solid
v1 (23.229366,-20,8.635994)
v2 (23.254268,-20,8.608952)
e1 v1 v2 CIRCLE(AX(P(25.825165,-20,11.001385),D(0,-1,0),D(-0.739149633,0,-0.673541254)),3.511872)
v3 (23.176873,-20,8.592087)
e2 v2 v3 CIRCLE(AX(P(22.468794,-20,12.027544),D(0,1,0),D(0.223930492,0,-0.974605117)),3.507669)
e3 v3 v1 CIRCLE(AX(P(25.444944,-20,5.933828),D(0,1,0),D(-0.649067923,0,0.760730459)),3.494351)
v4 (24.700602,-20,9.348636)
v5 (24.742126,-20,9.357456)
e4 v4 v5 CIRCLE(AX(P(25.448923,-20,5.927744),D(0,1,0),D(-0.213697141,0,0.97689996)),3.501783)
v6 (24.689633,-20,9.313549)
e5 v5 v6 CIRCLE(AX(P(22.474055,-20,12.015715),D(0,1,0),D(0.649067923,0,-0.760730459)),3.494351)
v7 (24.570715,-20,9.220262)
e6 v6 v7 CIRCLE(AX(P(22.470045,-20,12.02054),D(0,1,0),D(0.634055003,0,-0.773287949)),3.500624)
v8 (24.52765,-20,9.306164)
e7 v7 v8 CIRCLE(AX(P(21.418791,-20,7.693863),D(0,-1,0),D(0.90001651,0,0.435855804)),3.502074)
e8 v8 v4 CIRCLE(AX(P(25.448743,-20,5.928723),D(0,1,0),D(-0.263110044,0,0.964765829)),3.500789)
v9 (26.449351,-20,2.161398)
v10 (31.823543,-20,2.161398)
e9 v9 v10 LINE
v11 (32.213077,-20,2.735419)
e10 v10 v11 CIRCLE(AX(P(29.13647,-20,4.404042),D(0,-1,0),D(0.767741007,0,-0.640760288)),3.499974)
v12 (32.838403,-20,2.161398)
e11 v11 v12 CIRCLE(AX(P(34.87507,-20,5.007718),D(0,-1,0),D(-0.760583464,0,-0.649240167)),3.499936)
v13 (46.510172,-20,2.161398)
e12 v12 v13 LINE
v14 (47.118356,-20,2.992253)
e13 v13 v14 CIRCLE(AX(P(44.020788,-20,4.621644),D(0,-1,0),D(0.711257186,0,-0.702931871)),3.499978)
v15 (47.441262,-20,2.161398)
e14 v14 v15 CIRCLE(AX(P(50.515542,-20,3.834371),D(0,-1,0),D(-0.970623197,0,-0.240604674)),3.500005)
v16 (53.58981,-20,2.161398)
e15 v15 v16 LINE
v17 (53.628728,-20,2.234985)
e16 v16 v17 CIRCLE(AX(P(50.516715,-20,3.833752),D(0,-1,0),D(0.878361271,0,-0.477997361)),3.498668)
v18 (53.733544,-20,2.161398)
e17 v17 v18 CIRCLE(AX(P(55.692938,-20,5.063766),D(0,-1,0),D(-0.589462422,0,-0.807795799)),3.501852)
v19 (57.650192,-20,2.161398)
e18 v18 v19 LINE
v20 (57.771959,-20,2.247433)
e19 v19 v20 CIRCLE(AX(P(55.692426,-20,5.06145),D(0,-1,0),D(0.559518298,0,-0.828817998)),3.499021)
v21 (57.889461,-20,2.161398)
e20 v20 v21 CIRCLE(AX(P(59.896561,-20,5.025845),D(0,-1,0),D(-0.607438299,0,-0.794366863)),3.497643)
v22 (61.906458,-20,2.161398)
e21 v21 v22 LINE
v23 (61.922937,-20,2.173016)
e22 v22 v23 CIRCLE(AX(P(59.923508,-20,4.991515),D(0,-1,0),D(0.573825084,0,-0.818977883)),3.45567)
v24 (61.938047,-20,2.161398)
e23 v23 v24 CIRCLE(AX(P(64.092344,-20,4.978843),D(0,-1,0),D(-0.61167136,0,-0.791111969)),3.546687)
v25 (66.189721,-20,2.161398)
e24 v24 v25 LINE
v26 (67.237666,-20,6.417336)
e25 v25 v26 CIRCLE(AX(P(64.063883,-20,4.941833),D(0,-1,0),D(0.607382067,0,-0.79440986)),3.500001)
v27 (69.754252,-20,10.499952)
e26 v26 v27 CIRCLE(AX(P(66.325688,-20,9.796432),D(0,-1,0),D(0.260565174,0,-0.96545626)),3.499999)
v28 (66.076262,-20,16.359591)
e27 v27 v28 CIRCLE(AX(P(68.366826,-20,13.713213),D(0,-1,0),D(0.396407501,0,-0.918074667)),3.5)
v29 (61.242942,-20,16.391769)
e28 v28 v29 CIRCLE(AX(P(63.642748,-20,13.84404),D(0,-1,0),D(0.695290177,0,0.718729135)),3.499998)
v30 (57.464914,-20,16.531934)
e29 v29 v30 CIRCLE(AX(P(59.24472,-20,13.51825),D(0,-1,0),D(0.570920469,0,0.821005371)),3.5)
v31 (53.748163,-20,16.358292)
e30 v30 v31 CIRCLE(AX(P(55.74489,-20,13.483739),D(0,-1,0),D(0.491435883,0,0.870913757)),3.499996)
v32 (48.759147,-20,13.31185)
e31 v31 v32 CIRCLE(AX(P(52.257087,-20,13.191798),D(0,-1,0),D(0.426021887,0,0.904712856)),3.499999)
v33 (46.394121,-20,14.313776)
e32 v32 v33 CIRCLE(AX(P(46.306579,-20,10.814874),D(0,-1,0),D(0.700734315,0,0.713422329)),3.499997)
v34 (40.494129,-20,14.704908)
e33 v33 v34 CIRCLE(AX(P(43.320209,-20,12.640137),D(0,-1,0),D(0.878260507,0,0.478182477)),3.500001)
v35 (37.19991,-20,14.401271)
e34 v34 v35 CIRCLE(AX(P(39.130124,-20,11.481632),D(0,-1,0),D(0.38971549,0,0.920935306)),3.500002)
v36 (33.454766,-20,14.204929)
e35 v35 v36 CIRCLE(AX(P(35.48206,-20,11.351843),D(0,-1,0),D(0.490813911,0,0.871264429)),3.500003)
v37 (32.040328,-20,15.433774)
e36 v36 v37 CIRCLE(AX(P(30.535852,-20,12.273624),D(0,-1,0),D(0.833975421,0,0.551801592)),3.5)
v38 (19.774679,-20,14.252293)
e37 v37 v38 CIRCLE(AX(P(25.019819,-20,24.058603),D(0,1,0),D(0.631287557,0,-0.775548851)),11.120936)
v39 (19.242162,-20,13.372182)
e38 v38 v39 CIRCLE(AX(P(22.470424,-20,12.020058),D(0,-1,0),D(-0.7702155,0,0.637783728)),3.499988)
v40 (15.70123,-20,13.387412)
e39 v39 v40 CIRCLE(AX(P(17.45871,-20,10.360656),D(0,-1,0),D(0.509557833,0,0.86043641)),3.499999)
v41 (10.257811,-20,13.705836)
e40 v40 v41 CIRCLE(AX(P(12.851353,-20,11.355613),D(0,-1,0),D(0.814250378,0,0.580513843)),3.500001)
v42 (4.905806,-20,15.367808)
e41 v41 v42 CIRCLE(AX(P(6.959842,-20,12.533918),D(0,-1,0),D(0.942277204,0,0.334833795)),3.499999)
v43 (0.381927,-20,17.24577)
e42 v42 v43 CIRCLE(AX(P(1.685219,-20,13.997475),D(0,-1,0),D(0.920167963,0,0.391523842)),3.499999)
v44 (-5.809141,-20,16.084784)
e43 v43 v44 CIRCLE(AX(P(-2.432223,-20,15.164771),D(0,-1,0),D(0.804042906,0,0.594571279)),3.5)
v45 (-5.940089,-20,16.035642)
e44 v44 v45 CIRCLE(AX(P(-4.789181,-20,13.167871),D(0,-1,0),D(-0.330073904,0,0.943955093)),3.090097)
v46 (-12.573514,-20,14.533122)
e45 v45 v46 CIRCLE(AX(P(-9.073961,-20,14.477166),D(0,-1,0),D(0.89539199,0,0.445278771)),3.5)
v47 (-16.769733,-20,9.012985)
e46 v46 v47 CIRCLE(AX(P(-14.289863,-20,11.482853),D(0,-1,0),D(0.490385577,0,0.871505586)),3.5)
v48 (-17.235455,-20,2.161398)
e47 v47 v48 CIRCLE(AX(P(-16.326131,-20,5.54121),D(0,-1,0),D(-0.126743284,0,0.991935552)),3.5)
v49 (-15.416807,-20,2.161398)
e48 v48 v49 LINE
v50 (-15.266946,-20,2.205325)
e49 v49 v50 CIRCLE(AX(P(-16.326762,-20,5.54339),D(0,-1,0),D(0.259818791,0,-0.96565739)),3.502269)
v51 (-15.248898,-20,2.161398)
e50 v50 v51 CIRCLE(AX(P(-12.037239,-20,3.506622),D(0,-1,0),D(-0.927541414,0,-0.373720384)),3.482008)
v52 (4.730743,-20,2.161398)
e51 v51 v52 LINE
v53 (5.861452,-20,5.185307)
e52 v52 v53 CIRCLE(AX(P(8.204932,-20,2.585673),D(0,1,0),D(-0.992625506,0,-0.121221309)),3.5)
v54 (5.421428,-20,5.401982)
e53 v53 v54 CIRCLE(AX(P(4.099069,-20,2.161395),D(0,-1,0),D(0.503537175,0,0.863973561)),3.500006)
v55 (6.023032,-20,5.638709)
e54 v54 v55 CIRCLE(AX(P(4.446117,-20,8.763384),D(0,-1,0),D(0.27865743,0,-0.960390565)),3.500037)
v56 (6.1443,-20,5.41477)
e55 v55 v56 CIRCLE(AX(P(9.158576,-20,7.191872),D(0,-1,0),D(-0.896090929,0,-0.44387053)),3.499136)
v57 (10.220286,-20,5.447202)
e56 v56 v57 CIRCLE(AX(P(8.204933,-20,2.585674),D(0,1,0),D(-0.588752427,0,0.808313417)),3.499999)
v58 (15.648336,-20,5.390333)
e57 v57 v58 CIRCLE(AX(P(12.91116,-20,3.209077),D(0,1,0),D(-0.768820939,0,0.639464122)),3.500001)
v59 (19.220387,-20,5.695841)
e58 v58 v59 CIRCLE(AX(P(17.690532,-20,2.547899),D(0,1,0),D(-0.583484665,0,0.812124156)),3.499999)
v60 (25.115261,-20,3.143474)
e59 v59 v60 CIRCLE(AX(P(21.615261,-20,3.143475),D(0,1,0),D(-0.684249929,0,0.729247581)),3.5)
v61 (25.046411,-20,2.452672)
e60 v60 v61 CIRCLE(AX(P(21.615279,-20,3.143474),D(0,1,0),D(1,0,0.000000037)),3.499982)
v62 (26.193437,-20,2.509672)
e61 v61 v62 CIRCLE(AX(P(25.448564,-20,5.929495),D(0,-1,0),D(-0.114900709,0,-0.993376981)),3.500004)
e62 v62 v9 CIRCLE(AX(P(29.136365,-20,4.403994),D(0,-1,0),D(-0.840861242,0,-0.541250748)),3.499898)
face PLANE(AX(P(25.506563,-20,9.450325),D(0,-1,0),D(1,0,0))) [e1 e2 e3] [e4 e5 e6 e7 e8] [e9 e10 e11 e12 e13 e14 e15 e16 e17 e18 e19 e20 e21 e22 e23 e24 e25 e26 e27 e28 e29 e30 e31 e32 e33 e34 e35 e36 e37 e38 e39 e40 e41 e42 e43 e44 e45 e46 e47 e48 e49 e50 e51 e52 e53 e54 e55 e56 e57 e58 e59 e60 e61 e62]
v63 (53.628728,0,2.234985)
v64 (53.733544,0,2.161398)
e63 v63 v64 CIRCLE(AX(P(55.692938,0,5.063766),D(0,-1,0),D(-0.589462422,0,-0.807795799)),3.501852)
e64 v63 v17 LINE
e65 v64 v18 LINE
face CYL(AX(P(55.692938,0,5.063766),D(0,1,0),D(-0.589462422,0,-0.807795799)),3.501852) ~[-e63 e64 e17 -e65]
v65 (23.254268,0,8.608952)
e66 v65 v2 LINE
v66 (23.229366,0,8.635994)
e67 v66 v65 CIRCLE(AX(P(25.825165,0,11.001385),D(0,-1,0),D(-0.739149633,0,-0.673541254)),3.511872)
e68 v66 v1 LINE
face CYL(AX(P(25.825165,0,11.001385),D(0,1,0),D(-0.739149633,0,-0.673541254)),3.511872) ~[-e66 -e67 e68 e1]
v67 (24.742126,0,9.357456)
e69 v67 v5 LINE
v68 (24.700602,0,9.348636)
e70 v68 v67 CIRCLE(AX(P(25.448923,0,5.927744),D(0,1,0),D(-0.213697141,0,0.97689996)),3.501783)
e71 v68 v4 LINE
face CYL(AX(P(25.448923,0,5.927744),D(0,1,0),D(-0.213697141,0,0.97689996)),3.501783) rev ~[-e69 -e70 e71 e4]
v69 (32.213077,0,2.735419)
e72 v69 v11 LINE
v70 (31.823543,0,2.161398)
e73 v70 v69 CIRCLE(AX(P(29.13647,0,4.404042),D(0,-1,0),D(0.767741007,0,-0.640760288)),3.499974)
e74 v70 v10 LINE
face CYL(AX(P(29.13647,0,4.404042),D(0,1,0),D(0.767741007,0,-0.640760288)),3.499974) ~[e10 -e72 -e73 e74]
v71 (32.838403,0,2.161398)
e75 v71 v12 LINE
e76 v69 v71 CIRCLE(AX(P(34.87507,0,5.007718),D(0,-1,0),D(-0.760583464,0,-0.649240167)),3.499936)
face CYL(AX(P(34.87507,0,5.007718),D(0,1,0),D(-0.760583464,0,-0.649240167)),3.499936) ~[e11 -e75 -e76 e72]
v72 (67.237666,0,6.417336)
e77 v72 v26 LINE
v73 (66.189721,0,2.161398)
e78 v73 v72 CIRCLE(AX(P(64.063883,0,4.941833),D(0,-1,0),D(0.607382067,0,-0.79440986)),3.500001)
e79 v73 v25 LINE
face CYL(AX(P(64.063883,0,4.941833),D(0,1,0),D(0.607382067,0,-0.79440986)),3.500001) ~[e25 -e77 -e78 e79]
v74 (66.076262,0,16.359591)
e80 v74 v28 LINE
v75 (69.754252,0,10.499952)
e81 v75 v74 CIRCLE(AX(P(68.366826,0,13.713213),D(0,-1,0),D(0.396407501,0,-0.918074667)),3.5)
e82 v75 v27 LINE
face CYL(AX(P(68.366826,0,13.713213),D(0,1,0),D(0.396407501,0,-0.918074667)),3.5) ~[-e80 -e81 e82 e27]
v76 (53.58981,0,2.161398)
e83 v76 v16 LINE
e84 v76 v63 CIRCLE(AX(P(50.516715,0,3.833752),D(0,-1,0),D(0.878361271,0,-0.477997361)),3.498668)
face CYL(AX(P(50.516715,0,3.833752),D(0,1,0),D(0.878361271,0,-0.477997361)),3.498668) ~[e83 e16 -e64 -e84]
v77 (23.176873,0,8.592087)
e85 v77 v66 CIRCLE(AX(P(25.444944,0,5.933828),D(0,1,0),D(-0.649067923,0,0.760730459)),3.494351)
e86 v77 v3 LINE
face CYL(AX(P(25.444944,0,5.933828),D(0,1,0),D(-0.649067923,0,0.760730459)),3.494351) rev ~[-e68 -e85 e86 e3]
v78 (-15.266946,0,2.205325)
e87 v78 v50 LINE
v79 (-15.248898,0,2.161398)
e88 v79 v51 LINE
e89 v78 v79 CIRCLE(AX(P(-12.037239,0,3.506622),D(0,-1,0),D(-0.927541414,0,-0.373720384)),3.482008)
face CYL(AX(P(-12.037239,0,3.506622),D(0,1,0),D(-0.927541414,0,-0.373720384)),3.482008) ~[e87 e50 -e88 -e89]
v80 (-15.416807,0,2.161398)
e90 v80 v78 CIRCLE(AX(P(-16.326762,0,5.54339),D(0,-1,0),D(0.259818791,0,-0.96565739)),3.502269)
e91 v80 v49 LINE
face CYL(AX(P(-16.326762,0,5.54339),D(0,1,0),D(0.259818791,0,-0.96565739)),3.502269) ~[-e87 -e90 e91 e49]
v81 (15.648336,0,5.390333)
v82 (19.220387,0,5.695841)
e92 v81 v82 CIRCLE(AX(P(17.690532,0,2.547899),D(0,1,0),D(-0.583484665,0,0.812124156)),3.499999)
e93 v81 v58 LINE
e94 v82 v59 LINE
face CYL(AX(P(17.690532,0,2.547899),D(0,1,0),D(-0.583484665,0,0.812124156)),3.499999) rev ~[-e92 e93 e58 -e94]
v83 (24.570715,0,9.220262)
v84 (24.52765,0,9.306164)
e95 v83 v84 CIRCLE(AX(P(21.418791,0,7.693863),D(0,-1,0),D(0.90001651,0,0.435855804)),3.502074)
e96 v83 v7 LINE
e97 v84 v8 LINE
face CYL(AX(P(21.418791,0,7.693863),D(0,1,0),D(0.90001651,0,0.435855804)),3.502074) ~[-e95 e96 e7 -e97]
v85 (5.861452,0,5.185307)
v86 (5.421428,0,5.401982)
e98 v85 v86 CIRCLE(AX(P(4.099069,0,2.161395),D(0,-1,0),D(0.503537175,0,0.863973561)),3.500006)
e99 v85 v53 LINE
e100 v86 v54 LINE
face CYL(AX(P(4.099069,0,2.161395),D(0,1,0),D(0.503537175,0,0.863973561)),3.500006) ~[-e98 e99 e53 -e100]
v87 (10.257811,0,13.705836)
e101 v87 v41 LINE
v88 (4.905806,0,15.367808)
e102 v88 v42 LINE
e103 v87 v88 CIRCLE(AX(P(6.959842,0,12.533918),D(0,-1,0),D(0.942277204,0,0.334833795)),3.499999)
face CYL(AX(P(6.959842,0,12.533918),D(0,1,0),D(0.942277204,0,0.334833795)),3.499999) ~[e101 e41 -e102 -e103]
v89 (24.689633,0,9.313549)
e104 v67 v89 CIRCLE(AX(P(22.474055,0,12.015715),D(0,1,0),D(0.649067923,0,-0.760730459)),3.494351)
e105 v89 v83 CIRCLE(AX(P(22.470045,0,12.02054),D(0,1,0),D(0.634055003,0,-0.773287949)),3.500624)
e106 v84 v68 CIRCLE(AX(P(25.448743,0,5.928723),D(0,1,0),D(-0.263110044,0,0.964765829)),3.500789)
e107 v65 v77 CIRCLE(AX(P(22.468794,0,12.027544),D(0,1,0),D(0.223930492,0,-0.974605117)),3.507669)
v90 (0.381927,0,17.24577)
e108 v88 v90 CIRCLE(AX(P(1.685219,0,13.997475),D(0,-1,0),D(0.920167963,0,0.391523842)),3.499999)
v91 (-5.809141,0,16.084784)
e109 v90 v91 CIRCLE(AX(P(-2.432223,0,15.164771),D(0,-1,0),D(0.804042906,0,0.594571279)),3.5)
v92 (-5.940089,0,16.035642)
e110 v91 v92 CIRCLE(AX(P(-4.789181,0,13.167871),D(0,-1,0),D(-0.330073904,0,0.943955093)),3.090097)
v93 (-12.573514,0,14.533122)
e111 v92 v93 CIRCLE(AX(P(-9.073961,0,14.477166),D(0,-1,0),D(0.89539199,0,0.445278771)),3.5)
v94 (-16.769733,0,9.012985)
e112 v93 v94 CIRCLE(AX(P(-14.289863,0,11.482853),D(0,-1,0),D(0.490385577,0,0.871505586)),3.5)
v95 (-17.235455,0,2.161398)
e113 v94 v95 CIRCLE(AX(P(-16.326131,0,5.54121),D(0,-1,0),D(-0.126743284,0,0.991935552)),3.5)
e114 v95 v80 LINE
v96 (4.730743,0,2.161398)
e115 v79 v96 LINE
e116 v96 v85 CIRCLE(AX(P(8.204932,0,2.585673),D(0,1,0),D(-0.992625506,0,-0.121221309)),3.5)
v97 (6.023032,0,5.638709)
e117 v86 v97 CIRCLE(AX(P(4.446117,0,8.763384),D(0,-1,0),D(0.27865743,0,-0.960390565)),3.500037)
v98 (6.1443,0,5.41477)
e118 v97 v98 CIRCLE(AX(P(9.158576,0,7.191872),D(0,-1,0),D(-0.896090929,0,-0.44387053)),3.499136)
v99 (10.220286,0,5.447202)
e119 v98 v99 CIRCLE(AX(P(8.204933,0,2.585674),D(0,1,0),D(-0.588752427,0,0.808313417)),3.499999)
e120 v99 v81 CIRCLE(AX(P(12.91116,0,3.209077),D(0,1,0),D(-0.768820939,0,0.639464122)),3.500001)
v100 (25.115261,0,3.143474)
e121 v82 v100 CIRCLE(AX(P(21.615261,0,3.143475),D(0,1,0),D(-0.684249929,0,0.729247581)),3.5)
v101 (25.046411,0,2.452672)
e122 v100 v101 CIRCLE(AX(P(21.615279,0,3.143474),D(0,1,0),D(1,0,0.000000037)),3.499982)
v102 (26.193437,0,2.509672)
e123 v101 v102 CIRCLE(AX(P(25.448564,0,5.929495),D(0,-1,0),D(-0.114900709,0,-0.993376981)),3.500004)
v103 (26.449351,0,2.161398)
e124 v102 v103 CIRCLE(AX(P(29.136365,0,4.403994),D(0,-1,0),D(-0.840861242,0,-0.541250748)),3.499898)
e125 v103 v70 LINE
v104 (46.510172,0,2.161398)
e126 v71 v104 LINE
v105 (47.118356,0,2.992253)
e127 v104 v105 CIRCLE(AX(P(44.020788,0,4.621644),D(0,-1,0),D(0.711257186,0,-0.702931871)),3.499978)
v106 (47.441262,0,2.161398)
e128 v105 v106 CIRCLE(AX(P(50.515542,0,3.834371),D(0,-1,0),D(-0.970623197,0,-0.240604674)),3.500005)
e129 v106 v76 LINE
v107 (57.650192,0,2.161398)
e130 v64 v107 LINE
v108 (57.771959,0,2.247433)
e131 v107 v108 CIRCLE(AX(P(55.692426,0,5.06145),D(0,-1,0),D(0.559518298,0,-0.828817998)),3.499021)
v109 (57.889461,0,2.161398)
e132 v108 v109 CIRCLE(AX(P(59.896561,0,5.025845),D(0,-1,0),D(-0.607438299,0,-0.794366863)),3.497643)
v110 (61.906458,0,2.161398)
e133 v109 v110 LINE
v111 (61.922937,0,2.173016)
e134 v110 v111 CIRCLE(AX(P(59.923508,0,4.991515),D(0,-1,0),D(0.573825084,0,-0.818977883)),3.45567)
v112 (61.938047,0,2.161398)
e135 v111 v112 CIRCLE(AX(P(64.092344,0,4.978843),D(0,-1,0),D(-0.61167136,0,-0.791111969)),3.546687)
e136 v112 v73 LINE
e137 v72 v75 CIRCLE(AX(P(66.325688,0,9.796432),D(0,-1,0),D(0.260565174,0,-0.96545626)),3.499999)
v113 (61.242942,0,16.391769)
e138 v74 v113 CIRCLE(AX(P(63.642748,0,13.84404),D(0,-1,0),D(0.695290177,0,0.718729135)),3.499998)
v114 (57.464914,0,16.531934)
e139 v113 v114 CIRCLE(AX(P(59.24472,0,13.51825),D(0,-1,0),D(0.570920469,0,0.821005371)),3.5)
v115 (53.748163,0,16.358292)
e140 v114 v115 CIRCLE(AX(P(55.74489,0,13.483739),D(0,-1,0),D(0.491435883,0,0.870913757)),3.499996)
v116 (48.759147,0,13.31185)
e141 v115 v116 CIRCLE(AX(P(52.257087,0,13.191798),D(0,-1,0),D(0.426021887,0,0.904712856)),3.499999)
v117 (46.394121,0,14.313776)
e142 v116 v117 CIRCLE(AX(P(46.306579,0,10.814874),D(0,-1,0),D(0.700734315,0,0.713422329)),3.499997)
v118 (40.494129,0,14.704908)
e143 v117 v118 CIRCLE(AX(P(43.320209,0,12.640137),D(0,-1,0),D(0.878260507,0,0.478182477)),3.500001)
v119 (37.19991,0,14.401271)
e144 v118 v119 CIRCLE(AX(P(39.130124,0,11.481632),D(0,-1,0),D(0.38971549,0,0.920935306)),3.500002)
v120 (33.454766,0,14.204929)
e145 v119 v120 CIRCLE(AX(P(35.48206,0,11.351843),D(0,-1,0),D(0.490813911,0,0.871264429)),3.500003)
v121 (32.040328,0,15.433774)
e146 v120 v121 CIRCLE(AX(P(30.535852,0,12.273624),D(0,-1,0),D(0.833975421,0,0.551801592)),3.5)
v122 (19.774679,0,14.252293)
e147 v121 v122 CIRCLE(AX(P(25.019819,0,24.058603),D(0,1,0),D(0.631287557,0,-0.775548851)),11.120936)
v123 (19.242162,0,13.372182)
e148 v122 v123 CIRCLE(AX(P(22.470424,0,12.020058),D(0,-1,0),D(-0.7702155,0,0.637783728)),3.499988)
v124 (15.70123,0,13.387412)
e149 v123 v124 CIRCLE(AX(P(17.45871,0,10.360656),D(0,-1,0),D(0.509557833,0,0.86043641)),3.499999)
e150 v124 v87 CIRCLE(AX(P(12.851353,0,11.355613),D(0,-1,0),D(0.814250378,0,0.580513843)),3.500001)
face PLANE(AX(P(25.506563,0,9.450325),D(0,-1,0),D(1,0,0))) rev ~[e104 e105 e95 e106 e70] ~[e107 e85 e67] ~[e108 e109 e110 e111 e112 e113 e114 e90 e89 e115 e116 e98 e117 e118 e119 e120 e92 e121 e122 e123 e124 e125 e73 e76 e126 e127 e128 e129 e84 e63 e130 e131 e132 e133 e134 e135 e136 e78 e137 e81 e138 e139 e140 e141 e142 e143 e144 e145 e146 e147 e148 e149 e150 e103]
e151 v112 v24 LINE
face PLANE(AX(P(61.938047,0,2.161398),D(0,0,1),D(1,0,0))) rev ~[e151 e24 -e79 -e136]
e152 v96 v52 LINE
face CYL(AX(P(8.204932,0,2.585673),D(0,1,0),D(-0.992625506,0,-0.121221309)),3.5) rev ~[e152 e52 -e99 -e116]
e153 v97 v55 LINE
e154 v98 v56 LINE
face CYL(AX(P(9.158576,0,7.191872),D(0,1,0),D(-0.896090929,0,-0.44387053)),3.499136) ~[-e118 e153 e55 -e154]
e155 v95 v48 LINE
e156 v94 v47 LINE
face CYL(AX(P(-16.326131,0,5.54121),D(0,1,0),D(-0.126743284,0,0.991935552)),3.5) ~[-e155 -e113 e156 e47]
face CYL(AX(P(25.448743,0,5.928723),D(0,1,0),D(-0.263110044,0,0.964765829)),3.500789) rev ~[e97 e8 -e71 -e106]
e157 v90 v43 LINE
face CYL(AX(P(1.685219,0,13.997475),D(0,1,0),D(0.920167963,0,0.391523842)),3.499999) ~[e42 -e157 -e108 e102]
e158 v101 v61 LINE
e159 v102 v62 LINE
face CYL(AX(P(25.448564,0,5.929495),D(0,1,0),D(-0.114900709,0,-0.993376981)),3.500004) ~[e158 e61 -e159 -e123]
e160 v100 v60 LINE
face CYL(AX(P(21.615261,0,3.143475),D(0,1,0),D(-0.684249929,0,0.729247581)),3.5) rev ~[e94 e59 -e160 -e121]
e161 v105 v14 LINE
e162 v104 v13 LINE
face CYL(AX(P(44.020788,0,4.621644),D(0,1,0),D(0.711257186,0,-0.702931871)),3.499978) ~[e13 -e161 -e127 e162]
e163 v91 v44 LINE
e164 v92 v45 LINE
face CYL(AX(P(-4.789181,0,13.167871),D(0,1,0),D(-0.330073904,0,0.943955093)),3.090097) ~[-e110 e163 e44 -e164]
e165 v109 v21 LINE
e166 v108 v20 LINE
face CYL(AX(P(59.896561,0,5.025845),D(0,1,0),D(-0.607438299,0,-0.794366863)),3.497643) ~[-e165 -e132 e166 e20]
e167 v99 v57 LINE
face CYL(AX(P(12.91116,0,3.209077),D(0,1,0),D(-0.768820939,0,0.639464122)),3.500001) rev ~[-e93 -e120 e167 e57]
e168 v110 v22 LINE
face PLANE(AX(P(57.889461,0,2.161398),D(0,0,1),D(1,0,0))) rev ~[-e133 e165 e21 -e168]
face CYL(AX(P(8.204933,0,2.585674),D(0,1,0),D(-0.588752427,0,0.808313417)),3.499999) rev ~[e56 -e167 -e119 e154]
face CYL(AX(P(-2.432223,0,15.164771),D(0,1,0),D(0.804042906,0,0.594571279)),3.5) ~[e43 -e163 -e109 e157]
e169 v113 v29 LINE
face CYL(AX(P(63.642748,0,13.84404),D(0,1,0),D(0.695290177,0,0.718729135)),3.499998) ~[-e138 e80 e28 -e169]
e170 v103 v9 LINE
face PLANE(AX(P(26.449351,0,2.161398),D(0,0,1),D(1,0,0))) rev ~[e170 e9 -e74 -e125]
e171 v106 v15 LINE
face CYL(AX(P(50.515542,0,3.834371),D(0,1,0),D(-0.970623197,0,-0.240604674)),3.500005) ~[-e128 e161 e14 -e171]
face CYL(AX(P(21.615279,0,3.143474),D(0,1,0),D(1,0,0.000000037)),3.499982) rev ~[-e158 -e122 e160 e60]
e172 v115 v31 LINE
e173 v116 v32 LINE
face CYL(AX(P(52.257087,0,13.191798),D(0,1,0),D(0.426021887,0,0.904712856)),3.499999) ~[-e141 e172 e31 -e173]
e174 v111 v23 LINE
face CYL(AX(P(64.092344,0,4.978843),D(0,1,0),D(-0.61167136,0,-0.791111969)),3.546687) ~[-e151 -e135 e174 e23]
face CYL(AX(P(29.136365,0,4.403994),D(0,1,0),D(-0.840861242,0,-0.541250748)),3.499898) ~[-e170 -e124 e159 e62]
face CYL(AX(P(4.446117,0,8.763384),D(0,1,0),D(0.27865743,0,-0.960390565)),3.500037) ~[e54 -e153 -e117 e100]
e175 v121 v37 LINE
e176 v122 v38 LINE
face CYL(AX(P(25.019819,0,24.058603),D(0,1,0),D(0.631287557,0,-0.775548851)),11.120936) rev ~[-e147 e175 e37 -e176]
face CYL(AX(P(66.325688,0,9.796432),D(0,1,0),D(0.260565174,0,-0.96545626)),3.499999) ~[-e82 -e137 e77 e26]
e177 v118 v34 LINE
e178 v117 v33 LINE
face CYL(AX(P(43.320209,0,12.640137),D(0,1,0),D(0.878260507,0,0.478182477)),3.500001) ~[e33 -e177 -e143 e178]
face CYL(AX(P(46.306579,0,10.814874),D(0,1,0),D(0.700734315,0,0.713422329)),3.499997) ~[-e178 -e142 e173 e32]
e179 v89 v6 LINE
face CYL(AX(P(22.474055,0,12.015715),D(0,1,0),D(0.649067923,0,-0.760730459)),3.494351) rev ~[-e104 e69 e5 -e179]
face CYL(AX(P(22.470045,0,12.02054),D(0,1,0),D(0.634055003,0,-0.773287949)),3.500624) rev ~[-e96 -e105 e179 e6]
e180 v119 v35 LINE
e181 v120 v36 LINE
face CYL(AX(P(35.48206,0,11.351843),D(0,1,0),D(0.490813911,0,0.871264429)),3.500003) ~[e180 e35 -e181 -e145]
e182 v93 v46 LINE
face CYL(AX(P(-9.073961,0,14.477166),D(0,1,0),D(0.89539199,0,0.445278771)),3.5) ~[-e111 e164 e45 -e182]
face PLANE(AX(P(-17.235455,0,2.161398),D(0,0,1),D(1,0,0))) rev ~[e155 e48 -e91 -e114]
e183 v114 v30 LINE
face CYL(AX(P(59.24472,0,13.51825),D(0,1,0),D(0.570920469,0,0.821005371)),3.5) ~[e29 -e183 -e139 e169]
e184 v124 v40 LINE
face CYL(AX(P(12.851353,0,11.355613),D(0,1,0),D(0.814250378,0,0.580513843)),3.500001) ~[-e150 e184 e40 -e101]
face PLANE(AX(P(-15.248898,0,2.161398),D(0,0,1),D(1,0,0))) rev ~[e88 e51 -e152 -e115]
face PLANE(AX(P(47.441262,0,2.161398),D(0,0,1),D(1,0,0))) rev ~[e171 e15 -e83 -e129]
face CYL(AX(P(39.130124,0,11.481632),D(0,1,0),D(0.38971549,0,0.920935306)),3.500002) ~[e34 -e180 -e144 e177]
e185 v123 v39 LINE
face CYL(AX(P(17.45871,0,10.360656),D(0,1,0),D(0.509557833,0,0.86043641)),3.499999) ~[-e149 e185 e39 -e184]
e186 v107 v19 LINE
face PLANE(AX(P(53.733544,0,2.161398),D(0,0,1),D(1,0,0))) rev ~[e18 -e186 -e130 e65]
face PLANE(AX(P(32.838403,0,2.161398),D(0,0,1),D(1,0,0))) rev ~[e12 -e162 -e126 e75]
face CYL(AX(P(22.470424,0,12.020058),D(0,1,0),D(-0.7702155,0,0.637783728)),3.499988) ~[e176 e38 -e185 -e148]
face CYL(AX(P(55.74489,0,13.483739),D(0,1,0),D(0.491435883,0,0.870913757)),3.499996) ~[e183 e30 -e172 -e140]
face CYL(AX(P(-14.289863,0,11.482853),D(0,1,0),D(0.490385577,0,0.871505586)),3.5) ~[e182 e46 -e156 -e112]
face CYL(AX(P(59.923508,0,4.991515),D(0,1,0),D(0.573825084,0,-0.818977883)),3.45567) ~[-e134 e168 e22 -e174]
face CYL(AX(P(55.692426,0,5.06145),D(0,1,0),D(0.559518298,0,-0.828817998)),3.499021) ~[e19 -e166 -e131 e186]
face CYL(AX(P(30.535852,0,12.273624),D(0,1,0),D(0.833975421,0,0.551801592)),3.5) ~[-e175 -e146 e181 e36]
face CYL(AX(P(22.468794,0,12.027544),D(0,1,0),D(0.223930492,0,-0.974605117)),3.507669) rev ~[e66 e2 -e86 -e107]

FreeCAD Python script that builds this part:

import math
import FreeCAD as App
import Part
import Sketcher

doc = App.newDocument("Part")
body = doc.addObject("PartDesign::Body", "Body")

# Sketch on XZ plane
sketch1 = doc.addObject("Sketcher::SketchObject", "Sketch")
body.addObject(sketch1)
sketch1.AttachmentSupport = (doc.XZ_Plane, [""])
sketch1.MapMode = "FlatFace"
sketch1.addGeometry([
    Part.ArcOfCircle(Part.Circle(App.Vector(-9.073961, 14.477166, 0), App.Vector(0, 0, 1), 3.5), math.radians(26.441176), math.radians(179.083952)),  # 0
    Part.ArcOfCircle(Part.Circle(App.Vector(-14.289863, 11.482853, 0), App.Vector(0, 0, 1), 3.5), math.radians(60.634072), math.radians(224.884222)),  # 1
    Part.ArcOfCircle(Part.Circle(App.Vector(-16.326131, 5.54121, 0), App.Vector(0, 0, 1), 3.5), math.radians(97.281439), math.radians(254.941407)),  # 2
    Part.LineSegment(App.Vector(-17.235455, 2.161398, 0), App.Vector(-15.416807, 2.161398, 0)),  # 3
    Part.ArcOfCircle(Part.Circle(App.Vector(-16.326762, 5.54339, 0), App.Vector(0, 0, 1), 3.502269), math.radians(-74.94069), math.radians(-72.385658)),  # 4
    Part.ArcOfCircle(Part.Circle(App.Vector(-12.037239, 3.506622, 0), App.Vector(0, 0, 1), 3.482008), math.radians(-158.054753), math.radians(-157.273306)),  # 5
    Part.LineSegment(App.Vector(-15.248898, 2.161398, 0), App.Vector(4.730743, 2.161398, 0)),  # 6
    Part.ArcOfCircle(Part.Circle(App.Vector(8.204932, 2.585673, 0), App.Vector(0, 0, 1), 3.5), math.radians(132.033559), math.radians(186.962593)),  # 7
    Part.ArcOfCircle(Part.Circle(App.Vector(4.099069, 2.161395, 0), App.Vector(0, 0, 1), 3.500006), math.radians(59.765705), math.radians(67.80152)),  # 8
    Part.ArcOfCircle(Part.Circle(App.Vector(4.446117, 8.763384, 0), App.Vector(0, 0, 1), 3.500037), math.radians(-73.819908), math.radians(-63.221505)),  # 9
    Part.ArcOfCircle(Part.Circle(App.Vector(9.158576, 7.191872, 0), App.Vector(0, 0, 1), 3.499136), math.radians(-153.648902), math.radians(-149.478017)),  # 10
    Part.ArcOfCircle(Part.Circle(App.Vector(8.204933, 2.585674, 0), App.Vector(0, 0, 1), 3.499999), math.radians(54.843242), math.radians(126.068527)),  # 11
    Part.ArcOfCircle(Part.Circle(App.Vector(12.91116, 3.209077, 0), App.Vector(0, 0, 1), 3.500001), math.radians(38.551355), math.radians(140.248128)),  # 12
    Part.ArcOfCircle(Part.Circle(App.Vector(17.690532, 2.547899, 0), App.Vector(0, 0, 1), 3.499999), math.radians(64.080907), math.radians(125.696011)),  # 13
    Part.ArcOfCircle(Part.Circle(App.Vector(21.615261, 3.143475, 0), App.Vector(0, 0, 1), 3.5), math.radians(-0.000013), math.radians(133.176647)),  # 14
    Part.ArcOfCircle(Part.Circle(App.Vector(21.615279, 3.143474, 0), App.Vector(0, 0, 1), 3.499982), math.radians(-11.383379), math.radians(0.000002)),  # 15
    Part.ArcOfCircle(Part.Circle(App.Vector(25.448564, 5.929495, 0), App.Vector(0, 0, 1), 3.500004), math.radians(-96.597898), math.radians(-77.7123)),  # 16
    Part.ArcOfCircle(Part.Circle(App.Vector(29.136365, 4.403994, 0), App.Vector(0, 0, 1), 3.499898), math.radians(-147.231177), math.radians(-140.151448)),  # 17
    Part.LineSegment(App.Vector(26.449351, 2.161398, 0), App.Vector(31.823543, 2.161398, 0)),  # 18
    Part.ArcOfCircle(Part.Circle(App.Vector(29.13647, 4.404042, 0), App.Vector(0, 0, 1), 3.499974), math.radians(-39.848536), math.radians(-28.473553)),  # 19
    Part.ArcOfCircle(Part.Circle(App.Vector(34.87507, 5.007718, 0), App.Vector(0, 0, 1), 3.499936), math.radians(-139.515662), math.radians(-125.585391)),  # 20
    Part.LineSegment(App.Vector(32.838403, 2.161398, 0), App.Vector(46.510172, 2.161398, 0)),  # 21
    Part.ArcOfCircle(Part.Circle(App.Vector(44.020788, 4.621644, 0), App.Vector(0, 0, 1), 3.499978), math.radians(-44.662704), math.radians(-27.745384)),  # 22
    Part.ArcOfCircle(Part.Circle(App.Vector(50.515542, 3.834371, 0), App.Vector(0, 0, 1), 3.500005), math.radians(-166.077769), math.radians(-151.445695)),  # 23
    Part.LineSegment(App.Vector(47.441262, 2.161398, 0), App.Vector(53.58981, 2.161398, 0)),  # 24
    Part.ArcOfCircle(Part.Circle(App.Vector(50.516715, 3.833752, 0), App.Vector(0, 0, 1), 3.498668), math.radians(-28.554688), math.radians(-27.191405)),  # 25
    Part.ArcOfCircle(Part.Circle(App.Vector(55.692938, 5.063766, 0), App.Vector(0, 0, 1), 3.501852), math.radians(-126.118869), math.radians(-124.023358)),  # 26
    Part.LineSegment(App.Vector(53.733544, 2.161398, 0), App.Vector(57.650192, 2.161398, 0)),  # 27
    Part.ArcOfCircle(Part.Circle(App.Vector(55.692426, 5.06145, 0), App.Vector(0, 0, 1), 3.499021), math.radians(-55.977509), math.radians(-53.535928)),  # 28
    Part.ArcOfCircle(Part.Circle(App.Vector(59.896561, 5.025845, 0), App.Vector(0, 0, 1), 3.497643), math.radians(-127.404505), math.radians(-125.018694)),  # 29
    Part.LineSegment(App.Vector(57.889461, 2.161398, 0), App.Vector(61.906458, 2.161398, 0)),  # 30
    Part.ArcOfCircle(Part.Circle(App.Vector(59.923508, 4.991515, 0), App.Vector(0, 0, 1), 3.45567), math.radians(-54.982606), math.radians(-54.648304)),  # 31
    Part.ArcOfCircle(Part.Circle(App.Vector(64.092344, 4.978843, 0), App.Vector(0, 0, 1), 3.546687), math.radians(-127.710452), math.radians(-127.402539)),  # 32
    Part.LineSegment(App.Vector(61.938047, 2.161398, 0), App.Vector(66.189721, 2.161398, 0)),  # 33
    Part.ArcOfCircle(Part.Circle(App.Vector(64.063883, 4.941833, 0), App.Vector(0, 0, 1), 3.500001), math.radians(-52.599551), math.radians(24.933884)),  # 34
    Part.ArcOfCircle(Part.Circle(App.Vector(66.325688, 9.796432, 0), App.Vector(0, 0, 1), 3.499999), math.radians(-74.8964), math.radians(11.595788)),  # 35
    Part.ArcOfCircle(Part.Circle(App.Vector(68.366826, 13.713213, 0), App.Vector(0, 0, 1), 3.5), math.radians(-66.646215), math.radians(130.87772)),  # 36
    Part.ArcOfCircle(Part.Circle(App.Vector(63.642748, 13.84404, 0), App.Vector(0, 0, 1), 3.499998), math.radians(45.949655), math.radians(133.287459)),  # 37
    Part.ArcOfCircle(Part.Circle(App.Vector(59.24472, 13.51825, 0), App.Vector(0, 0, 1), 3.5), math.radians(55.185562), math.radians(120.565035)),  # 38
    Part.ArcOfCircle(Part.Circle(App.Vector(55.74489, 13.483739, 0), App.Vector(0, 0, 1), 3.499996), math.radians(60.564998), math.radians(124.784688)),  # 39
    Part.ArcOfCircle(Part.Circle(App.Vector(52.257087, 13.191798, 0), App.Vector(0, 0, 1), 3.499999), math.radians(64.784637), math.radians(178.034331)),  # 40
    Part.ArcOfCircle(Part.Circle(App.Vector(46.306579, 10.814874, 0), App.Vector(0, 0, 1), 3.499997), math.radians(45.514052), math.radians(88.566768)),  # 41
    Part.ArcOfCircle(Part.Circle(App.Vector(43.320209, 12.640137, 0), App.Vector(0, 0, 1), 3.500001), math.radians(28.566764), math.radians(143.847643)),  # 42
    Part.ArcOfCircle(Part.Circle(App.Vector(39.130124, 11.481632, 0), App.Vector(0, 0, 1), 3.500002), math.radians(67.063203), math.radians(123.469249)),  # 43
    Part.ArcOfCircle(Part.Circle(App.Vector(35.48206, 11.351843, 0), App.Vector(0, 0, 1), 3.500003), math.radians(60.605908), math.radians(125.396146)),  # 44
    Part.ArcOfCircle(Part.Circle(App.Vector(30.535852, 12.273624, 0), App.Vector(0, 0, 1), 3.5), math.radians(33.490698), math.radians(64.541944)),  # 45
    Part.ArcOfCircle(Part.Circle(App.Vector(25.019819, 24.058603, 0), App.Vector(0, 0, 1), 11.120936), math.radians(-118.141169), math.radians(-50.85482)),  # 46
    Part.ArcOfCircle(Part.Circle(App.Vector(22.470424, 12.020058, 0), App.Vector(0, 0, 1), 3.499988), math.radians(140.373245), math.radians(157.274128)),  # 47
    Part.ArcOfCircle(Part.Circle(App.Vector(17.45871, 10.360656, 0), App.Vector(0, 0, 1), 3.499999), math.radians(59.365618), math.radians(120.141512)),  # 48
    Part.ArcOfCircle(Part.Circle(App.Vector(12.851353, 11.355613, 0), App.Vector(0, 0, 1), 3.500001), math.radians(35.486692), math.radians(137.817669)),  # 49
    Part.ArcOfCircle(Part.Circle(App.Vector(6.959842, 12.533918, 0), App.Vector(0, 0, 1), 3.499999), math.radians(19.562431), math.radians(125.935025)),  # 50
    Part.ArcOfCircle(Part.Circle(App.Vector(1.685219, 13.997475, 0), App.Vector(0, 0, 1), 3.499999), math.radians(23.049351), math.radians(111.861817)),  # 51
    Part.ArcOfCircle(Part.Circle(App.Vector(-2.432223, 15.164771, 0), App.Vector(0, 0, 1), 3.5), math.radians(36.482076), math.radians(164.760109)),  # 52
    Part.ArcOfCircle(Part.Circle(App.Vector(-4.789181, 13.167871, 0), App.Vector(0, 0, 1), 3.090097), math.radians(109.273261), math.radians(111.86683)),  # 53
    Part.ArcOfCircle(Part.Circle(App.Vector(25.825165, 11.001385, 0), App.Vector(0, 0, 1), 3.511872), math.radians(-137.659028), math.radians(-137.059272)),  # 54
    Part.ArcOfCircle(Part.Circle(App.Vector(22.468794, 12.027544, 0), App.Vector(0, 0, 1), 3.507669), math.radians(-78.353902), math.radians(-77.060005)),  # 55
    Part.ArcOfCircle(Part.Circle(App.Vector(25.444944, 5.933828, 0), App.Vector(0, 0, 1), 3.494351), math.radians(129.34924), math.radians(130.471364)),  # 56
    Part.ArcOfCircle(Part.Circle(App.Vector(25.448743, 5.928723, 0), App.Vector(0, 0, 1), 3.500789), math.radians(102.339641), math.radians(105.254682)),  # 57
    Part.ArcOfCircle(Part.Circle(App.Vector(25.448923, 5.927744, 0), App.Vector(0, 0, 1), 3.501783), math.radians(101.64453), math.radians(102.339103)),  # 58
    Part.ArcOfCircle(Part.Circle(App.Vector(22.474055, 12.015715, 0), App.Vector(0, 0, 1), 3.494351), math.radians(-50.65076), math.radians(-49.528636)),  # 59
    Part.ArcOfCircle(Part.Circle(App.Vector(22.470045, 12.02054, 0), App.Vector(0, 0, 1), 3.500624), math.radians(-53.124051), math.radians(-50.650069)),  # 60
    Part.ArcOfCircle(Part.Circle(App.Vector(21.418791, 7.693863, 0), App.Vector(0, 0, 1), 3.502074), math.radians(25.839763), math.radians(27.411934)),  # 61
], False)
sketch1.addConstraint([
    Sketcher.Constraint("Coincident", 0, 2, 1, 1),
    Sketcher.Constraint("Coincident", 1, 2, 2, 1),
    Sketcher.Constraint("Coincident", 2, 2, 3, 1),
    Sketcher.Constraint("Coincident", 3, 2, 4, 1),
    Sketcher.Constraint("Coincident", 4, 2, 5, 1),
    Sketcher.Constraint("Coincident", 5, 2, 6, 1),
    Sketcher.Constraint("Coincident", 6, 2, 7, 2),
    Sketcher.Constraint("Coincident", 7, 1, 8, 1),
    Sketcher.Constraint("Coincident", 8, 2, 9, 1),
    Sketcher.Constraint("Coincident", 9, 2, 10, 1),
    Sketcher.Constraint("Coincident", 10, 2, 11, 2),
    Sketcher.Constraint("Coincident", 11, 1, 12, 2),
    Sketcher.Constraint("Coincident", 12, 1, 13, 2),
    Sketcher.Constraint("Coincident", 13, 1, 14, 2),
    Sketcher.Constraint("Coincident", 14, 1, 15, 2),
    Sketcher.Constraint("Coincident", 15, 1, 16, 1),
    Sketcher.Constraint("Coincident", 16, 2, 17, 1),
    Sketcher.Constraint("Coincident", 17, 2, 18, 1),
    Sketcher.Constraint("Coincident", 18, 2, 19, 1),
    Sketcher.Constraint("Coincident", 19, 2, 20, 1),
    Sketcher.Constraint("Coincident", 20, 2, 21, 1),
    Sketcher.Constraint("Coincident", 21, 2, 22, 1),
    Sketcher.Constraint("Coincident", 22, 2, 23, 1),
    Sketcher.Constraint("Coincident", 23, 2, 24, 1),
    Sketcher.Constraint("Coincident", 24, 2, 25, 1),
    Sketcher.Constraint("Coincident", 25, 2, 26, 1),
    Sketcher.Constraint("Coincident", 26, 2, 27, 1),
    Sketcher.Constraint("Coincident", 27, 2, 28, 1),
    Sketcher.Constraint("Coincident", 28, 2, 29, 1),
    Sketcher.Constraint("Coincident", 29, 2, 30, 1),
    Sketcher.Constraint("Coincident", 30, 2, 31, 1),
    Sketcher.Constraint("Coincident", 31, 2, 32, 1),
    Sketcher.Constraint("Coincident", 32, 2, 33, 1),
    Sketcher.Constraint("Coincident", 33, 2, 34, 1),
    Sketcher.Constraint("Coincident", 34, 2, 35, 1),
    Sketcher.Constraint("Coincident", 35, 2, 36, 1),
    Sketcher.Constraint("Coincident", 36, 2, 37, 1),
    Sketcher.Constraint("Coincident", 37, 2, 38, 1),
    Sketcher.Constraint("Coincident", 38, 2, 39, 1),
    Sketcher.Constraint("Coincident", 39, 2, 40, 1),
    Sketcher.Constraint("Coincident", 40, 2, 41, 1),
    Sketcher.Constraint("Coincident", 41, 2, 42, 1),
    Sketcher.Constraint("Coincident", 42, 2, 43, 1),
    Sketcher.Constraint("Coincident", 43, 2, 44, 1),
    Sketcher.Constraint("Coincident", 44, 2, 45, 1),
    Sketcher.Constraint("Coincident", 45, 2, 46, 2),
    Sketcher.Constraint("Coincident", 46, 1, 47, 1),
    Sketcher.Constraint("Coincident", 47, 2, 48, 1),
    Sketcher.Constraint("Coincident", 48, 2, 49, 1),
    Sketcher.Constraint("Coincident", 49, 2, 50, 1),
    Sketcher.Constraint("Coincident", 50, 2, 51, 1),
    Sketcher.Constraint("Coincident", 51, 2, 52, 1),
    Sketcher.Constraint("Coincident", 52, 2, 53, 1),
    Sketcher.Constraint("Coincident", 53, 2, 0, 1),
    Sketcher.Constraint("Coincident", 54, 2, 55, 2),
    Sketcher.Constraint("Coincident", 55, 1, 56, 2),
    Sketcher.Constraint("Coincident", 56, 1, 54, 1),
    Sketcher.Constraint("Coincident", 57, 1, 58, 2),
    Sketcher.Constraint("Coincident", 58, 1, 59, 2),
    Sketcher.Constraint("Coincident", 59, 1, 60, 2),
    Sketcher.Constraint("Coincident", 60, 1, 61, 1),
    Sketcher.Constraint("Coincident", 61, 2, 57, 2),
    Sketcher.Constraint("Horizontal", 3),
    Sketcher.Constraint("Horizontal", 6),
    Sketcher.Constraint("Horizontal", 18),
    Sketcher.Constraint("Horizontal", 21),
    Sketcher.Constraint("Horizontal", 24),
    Sketcher.Constraint("Horizontal", 27),
    Sketcher.Constraint("Horizontal", 30),
    Sketcher.Constraint("Horizontal", 33),
    Sketcher.Constraint("Coincident", 11, 3, 7, 3),
    Sketcher.Constraint("Radius", 0, 3.5),
    Sketcher.Constraint("Radius", 1, 3.5),
    Sketcher.Constraint("Radius", 2, 3.5),
    Sketcher.Constraint("Radius", 7, 3.5),
    Sketcher.Constraint("Radius", 11, 3.499999),
    Sketcher.Constraint("Radius", 12, 3.500001),
    Sketcher.Constraint("Radius", 13, 3.499999),
    Sketcher.Constraint("Radius", 14, 3.5),
    Sketcher.Constraint("Radius", 34, 3.500001),
    Sketcher.Constraint("Radius", 35, 3.499999),
    Sketcher.Constraint("Radius", 36, 3.5),
    Sketcher.Constraint("Radius", 37, 3.499998),
    Sketcher.Constraint("Radius", 38, 3.5),
    Sketcher.Constraint("Radius", 40, 3.499999),
    Sketcher.Constraint("Radius", 42, 3.500001),
    Sketcher.Constraint("Radius", 45, 3.5),
    Sketcher.Constraint("Radius", 48, 3.499999),
    Sketcher.Constraint("Radius", 49, 3.500001),
    Sketcher.Constraint("Radius", 50, 3.499999),
    Sketcher.Constraint("Radius", 51, 3.499999),
    Sketcher.Constraint("Radius", 52, 3.5),
    Sketcher.Constraint("Radius", 4, 3.502269),
    Sketcher.Constraint("Radius", 5, 3.482008),
    Sketcher.Constraint("Radius", 25, 3.498668),
    Sketcher.Constraint("Radius", 26, 3.501852),
    Sketcher.Constraint("Radius", 28, 3.499021),
    Sketcher.Constraint("Radius", 31, 3.45567),
    Sketcher.Constraint("Radius", 55, 3.507669),
    Sketcher.Constraint("Radius", 56, 3.494351),
    Sketcher.Constraint("Radius", 57, 3.500789),
    Sketcher.Constraint("Radius", 59, 3.494351),
    Sketcher.Constraint("Radius", 8, 3.500006),
    Sketcher.Constraint("Radius", 9, 3.500037),
    Sketcher.Constraint("Radius", 10, 3.499136),
    Sketcher.Constraint("Radius", 15, 3.499982),
    Sketcher.Constraint("Radius", 16, 3.500004),
    Sketcher.Constraint("Radius", 17, 3.499898),
    Sketcher.Constraint("Radius", 19, 3.499974),
    Sketcher.Constraint("Radius", 20, 3.499936),
    Sketcher.Constraint("Radius", 22, 3.499978),
    Sketcher.Constraint("Radius", 23, 3.500005),
    Sketcher.Constraint("Radius", 29, 3.497643),
    Sketcher.Constraint("Radius", 32, 3.546687),
    Sketcher.Constraint("Radius", 39, 3.499996),
    Sketcher.Constraint("Radius", 41, 3.499997),
    Sketcher.Constraint("Radius", 43, 3.500002),
    Sketcher.Constraint("Radius", 44, 3.500003),
    Sketcher.Constraint("Radius", 46, 11.120936),
    Sketcher.Constraint("Radius", 47, 3.499988),
    Sketcher.Constraint("Radius", 53, 3.090097),
    Sketcher.Constraint("Radius", 54, 3.511872),
    Sketcher.Constraint("Radius", 58, 3.501783),
    Sketcher.Constraint("Radius", 60, 3.500624),
    Sketcher.Constraint("Radius", 61, 3.502074),
    Sketcher.Constraint("DistanceX", 3, 1, 3, 2, 1.818648),
    Sketcher.Constraint("DistanceX", 6, 1, 6, 2, 19.979641),
    Sketcher.Constraint("DistanceX", 21, 1, 21, 2, 13.671769),
    Sketcher.Constraint("DistanceY", -1, 1, 13, 3, 2.547899),
    Sketcher.Constraint("DistanceY", -1, 1, 2, 2, 2.161398),
    Sketcher.Constraint("DistanceX", 5, 2, -1, 1, 15.248898),
    Sketcher.Constraint("DistanceY", -1, 1, 6, 2, 2.161398),
    Sketcher.Constraint("DistanceX", -1, 1, 10, 2, 6.1443),
    Sketcher.Constraint("DistanceY", -1, 1, 11, 1, 5.447202),
    Sketcher.Constraint("DistanceY", -1, 1, 18, 2, 2.161398),
    Sketcher.Constraint("DistanceY", -1, 1, 21, 2, 2.161398),
    Sketcher.Constraint("DistanceY", -1, 1, 24, 2, 2.161398),
    Sketcher.Constraint("DistanceY", -1, 1, 27, 2, 2.161398),
    Sketcher.Constraint("DistanceY", -1, 1, 29, 2, 2.161398),
    Sketcher.Constraint("DistanceY", -1, 1, 32, 2, 2.161398),
    Sketcher.Constraint("DistanceX", 18, 1, 18, 2, 5.374192),
    Sketcher.Constraint("DistanceX", 24, 1, 24, 2, 6.148548),
    Sketcher.Constraint("DistanceX", 27, 1, 27, 2, 3.916648),
    Sketcher.Constraint("DistanceX", 30, 1, 30, 2, 4.016997),
    Sketcher.Constraint("DistanceX", 33, 1, 33, 2, 4.251674),
    Sketcher.Constraint("DistanceX", 0, 3, -1, 1, 9.073961),
    Sketcher.Constraint("DistanceX", 2, 3, -1, 1, 16.326131),
    Sketcher.Constraint("DistanceY", -1, 1, 2, 3, 5.54121),
    Sketcher.Constraint("DistanceY", -1, 1, 4, 3, 5.54339),
    Sketcher.Constraint("DistanceX", 5, 3, -1, 1, 12.037239),
    Sketcher.Constraint("DistanceX", -1, 1, 7, 3, 8.204932),
    Sketcher.Constraint("DistanceX", -1, 1, 8, 3, 4.099069),
    Sketcher.Constraint("DistanceX", -1, 1, 12, 3, 12.91116),
    Sketcher.Constraint("DistanceX", -1, 1, 13, 3, 17.690532),
    Sketcher.Constraint("DistanceX", -1, 1, 14, 3, 21.615261),
    Sketcher.Constraint("DistanceX", -1, 1, 19, 3, 29.13647),
    Sketcher.Constraint("DistanceX", -1, 1, 20, 3, 34.87507),
    Sketcher.Constraint("DistanceY", -1, 1, 20, 3, 5.007718),
    Sketcher.Constraint("DistanceX", -1, 1, 23, 3, 50.515542),
    Sketcher.Constraint("DistanceY", -1, 1, 23, 3, 3.834371),
    Sketcher.Constraint("DistanceX", -1, 1, 26, 3, 55.692938),
    Sketcher.Constraint("DistanceY", -1, 1, 28, 3, 5.06145),
    Sketcher.Constraint("DistanceX", -1, 1, 29, 3, 59.896561),
    Sketcher.Constraint("DistanceX", -1, 1, 35, 3, 66.325688),
    Sketcher.Constraint("DistanceY", -1, 1, 35, 3, 9.796432),
    Sketcher.Constraint("DistanceY", -1, 1, 37, 3, 13.84404),
    Sketcher.Constraint("DistanceX", -1, 1, 38, 3, 59.24472),
    Sketcher.Constraint("DistanceY", -1, 1, 38, 3, 13.51825),
    Sketcher.Constraint("DistanceX", -1, 1, 39, 3, 55.74489),
    Sketcher.Constraint("DistanceY", -1, 1, 39, 3, 13.483739),
    Sketcher.Constraint("DistanceX", -1, 1, 41, 3, 46.306579),
    Sketcher.Constraint("DistanceX", -1, 1, 42, 3, 43.320209),
    Sketcher.Constraint("DistanceX", -1, 1, 44, 3, 35.48206),
    Sketcher.Constraint("DistanceX", -1, 1, 46, 3, 25.019819),
    Sketcher.Constraint("DistanceX", -1, 1, 48, 3, 17.45871),
    Sketcher.Constraint("DistanceX", -1, 1, 50, 3, 6.959842),
    Sketcher.Constraint("DistanceX", -1, 1, 51, 3, 1.685219),
    Sketcher.Constraint("DistanceY", -1, 1, 52, 3, 15.164771),
    Sketcher.Constraint("DistanceX", 53, 3, -1, 1, 4.789181),
    Sketcher.Constraint("DistanceY", -1, 1, 53, 3, 13.167871),
    Sketcher.Constraint("DistanceY", -1, 1, 56, 3, 5.933828),
    Sketcher.Constraint("DistanceY", -1, 1, 60, 3, 12.02054),
    Sketcher.Constraint("DistanceX", -1, 1, 61, 3, 21.418791),
    Sketcher.Constraint("DistanceX", -1, 1, 7, 1, 5.861452),
    Sketcher.Constraint("DistanceX", -1, 1, 8, 2, 5.421428),
    Sketcher.Constraint("DistanceX", -1, 1, 9, 2, 6.023032),
    Sketcher.Constraint("DistanceY", -1, 1, 9, 2, 5.638709),
    Sketcher.Constraint("DistanceY", -1, 1, 13, 1, 5.695841),
    Sketcher.Constraint("DistanceX", -1, 1, 15, 1, 25.046411),
    Sketcher.Constraint("DistanceY", -1, 1, 15, 1, 2.452672),
    Sketcher.Constraint("DistanceX", -1, 1, 17, 2, 26.449351),
    Sketcher.Constraint("DistanceX", -1, 1, 25, 2, 53.628728),
    Sketcher.Constraint("DistanceX", -1, 1, 27, 2, 57.650192),
    Sketcher.Constraint("DistanceX", -1, 1, 28, 2, 57.771959),
    Sketcher.Constraint("DistanceX", -1, 1, 33, 2, 66.189721),
    Sketcher.Constraint("DistanceY", -1, 1, 36, 2, 16.359591),
    Sketcher.Constraint("DistanceX", -1, 1, 37, 2, 61.242942),
    Sketcher.Constraint("DistanceY", -1, 1, 40, 2, 13.31185),
    Sketcher.Constraint("DistanceX", -1, 1, 41, 2, 46.394121),
    Sketcher.Constraint("DistanceX", -1, 1, 42, 2, 40.494129),
    Sketcher.Constraint("DistanceX", -1, 1, 43, 2, 37.19991),
    Sketcher.Constraint("DistanceY", -1, 1, 43, 2, 14.401271),
    Sketcher.Constraint("DistanceY", -1, 1, 44, 2, 14.204929),
    Sketcher.Constraint("DistanceX", -1, 1, 46, 1, 19.774679),
    Sketcher.Constraint("DistanceY", -1, 1, 47, 2, 13.372182),
    Sketcher.Constraint("DistanceX", -1, 1, 48, 2, 15.70123),
    Sketcher.Constraint("DistanceX", -1, 1, 49, 2, 10.257811),
    Sketcher.Constraint("DistanceY", -1, 1, 51, 2, 17.24577),
    Sketcher.Constraint("DistanceX", 52, 2, -1, 1, 5.809141),
    Sketcher.Constraint("DistanceX", 53, 2, -1, 1, 5.940089),
    Sketcher.Constraint("DistanceY", -1, 1, 54, 2, 8.608952),
    Sketcher.Constraint("DistanceY", -1, 1, 59, 1, 9.313549),
    Sketcher.Constraint("DistanceY", -1, 1, 60, 1, 9.220262),
    Sketcher.Constraint("DistanceX", -1, 1, 61, 2, 24.52765),
    Sketcher.Constraint("DistanceX", 1, 3, -1, 1, 14.289863),
    Sketcher.Constraint("DistanceY", -1, 1, 1, 3, 11.482853),
    Sketcher.Constraint("DistanceX", -1, 1, 16, 3, 25.448564),
    Sketcher.Constraint("DistanceX", -1, 1, 17, 3, 29.136365),
    Sketcher.Constraint("DistanceX", -1, 1, 22, 3, 44.020788),
    Sketcher.Constraint("DistanceX", -1, 1, 31, 3, 59.923508),
    Sketcher.Constraint("DistanceX", -1, 1, 32, 3, 64.092344),
    Sketcher.Constraint("DistanceX", -1, 1, 34, 3, 64.063883),
    Sketcher.Constraint("DistanceX", -1, 1, 36, 3, 68.366826),
    Sketcher.Constraint("DistanceX", -1, 1, 40, 3, 52.257087),
    Sketcher.Constraint("DistanceY", -1, 1, 40, 3, 13.191798),
    Sketcher.Constraint("DistanceX", -1, 1, 45, 3, 30.535852),
    Sketcher.Constraint("DistanceY", -1, 1, 46, 3, 24.058603),
    Sketcher.Constraint("DistanceX", -1, 1, 47, 3, 22.470424),
    Sketcher.Constraint("DistanceX", -1, 1, 49, 3, 12.851353),
    Sketcher.Constraint("DistanceX", -1, 1, 54, 3, 25.825165),
    Sketcher.Constraint("DistanceY", -1, 1, 54, 3, 11.001385),
    Sketcher.Constraint("DistanceX", -1, 1, 55, 3, 22.468794),
    Sketcher.Constraint("DistanceX", -1, 1, 56, 3, 25.444944),
    Sketcher.Constraint("DistanceX", -1, 1, 57, 3, 25.448743),
    Sketcher.Constraint("DistanceY", -1, 1, 57, 3, 5.928723),
    Sketcher.Constraint("DistanceX", -1, 1, 58, 3, 25.448923),
    Sketcher.Constraint("DistanceX", -1, 1, 59, 3, 22.474055),
    Sketcher.Constraint("DistanceY", -1, 1, 14, 1, 3.143474),
    Sketcher.Constraint("DistanceX", -1, 1, 57, 1, 24.700602),
])
pad1 = doc.addObject("PartDesign::Pad", "Pad")
body.addObject(pad1)
pad1.Profile = sketch1
pad1.Length = 20

doc.recompute()
